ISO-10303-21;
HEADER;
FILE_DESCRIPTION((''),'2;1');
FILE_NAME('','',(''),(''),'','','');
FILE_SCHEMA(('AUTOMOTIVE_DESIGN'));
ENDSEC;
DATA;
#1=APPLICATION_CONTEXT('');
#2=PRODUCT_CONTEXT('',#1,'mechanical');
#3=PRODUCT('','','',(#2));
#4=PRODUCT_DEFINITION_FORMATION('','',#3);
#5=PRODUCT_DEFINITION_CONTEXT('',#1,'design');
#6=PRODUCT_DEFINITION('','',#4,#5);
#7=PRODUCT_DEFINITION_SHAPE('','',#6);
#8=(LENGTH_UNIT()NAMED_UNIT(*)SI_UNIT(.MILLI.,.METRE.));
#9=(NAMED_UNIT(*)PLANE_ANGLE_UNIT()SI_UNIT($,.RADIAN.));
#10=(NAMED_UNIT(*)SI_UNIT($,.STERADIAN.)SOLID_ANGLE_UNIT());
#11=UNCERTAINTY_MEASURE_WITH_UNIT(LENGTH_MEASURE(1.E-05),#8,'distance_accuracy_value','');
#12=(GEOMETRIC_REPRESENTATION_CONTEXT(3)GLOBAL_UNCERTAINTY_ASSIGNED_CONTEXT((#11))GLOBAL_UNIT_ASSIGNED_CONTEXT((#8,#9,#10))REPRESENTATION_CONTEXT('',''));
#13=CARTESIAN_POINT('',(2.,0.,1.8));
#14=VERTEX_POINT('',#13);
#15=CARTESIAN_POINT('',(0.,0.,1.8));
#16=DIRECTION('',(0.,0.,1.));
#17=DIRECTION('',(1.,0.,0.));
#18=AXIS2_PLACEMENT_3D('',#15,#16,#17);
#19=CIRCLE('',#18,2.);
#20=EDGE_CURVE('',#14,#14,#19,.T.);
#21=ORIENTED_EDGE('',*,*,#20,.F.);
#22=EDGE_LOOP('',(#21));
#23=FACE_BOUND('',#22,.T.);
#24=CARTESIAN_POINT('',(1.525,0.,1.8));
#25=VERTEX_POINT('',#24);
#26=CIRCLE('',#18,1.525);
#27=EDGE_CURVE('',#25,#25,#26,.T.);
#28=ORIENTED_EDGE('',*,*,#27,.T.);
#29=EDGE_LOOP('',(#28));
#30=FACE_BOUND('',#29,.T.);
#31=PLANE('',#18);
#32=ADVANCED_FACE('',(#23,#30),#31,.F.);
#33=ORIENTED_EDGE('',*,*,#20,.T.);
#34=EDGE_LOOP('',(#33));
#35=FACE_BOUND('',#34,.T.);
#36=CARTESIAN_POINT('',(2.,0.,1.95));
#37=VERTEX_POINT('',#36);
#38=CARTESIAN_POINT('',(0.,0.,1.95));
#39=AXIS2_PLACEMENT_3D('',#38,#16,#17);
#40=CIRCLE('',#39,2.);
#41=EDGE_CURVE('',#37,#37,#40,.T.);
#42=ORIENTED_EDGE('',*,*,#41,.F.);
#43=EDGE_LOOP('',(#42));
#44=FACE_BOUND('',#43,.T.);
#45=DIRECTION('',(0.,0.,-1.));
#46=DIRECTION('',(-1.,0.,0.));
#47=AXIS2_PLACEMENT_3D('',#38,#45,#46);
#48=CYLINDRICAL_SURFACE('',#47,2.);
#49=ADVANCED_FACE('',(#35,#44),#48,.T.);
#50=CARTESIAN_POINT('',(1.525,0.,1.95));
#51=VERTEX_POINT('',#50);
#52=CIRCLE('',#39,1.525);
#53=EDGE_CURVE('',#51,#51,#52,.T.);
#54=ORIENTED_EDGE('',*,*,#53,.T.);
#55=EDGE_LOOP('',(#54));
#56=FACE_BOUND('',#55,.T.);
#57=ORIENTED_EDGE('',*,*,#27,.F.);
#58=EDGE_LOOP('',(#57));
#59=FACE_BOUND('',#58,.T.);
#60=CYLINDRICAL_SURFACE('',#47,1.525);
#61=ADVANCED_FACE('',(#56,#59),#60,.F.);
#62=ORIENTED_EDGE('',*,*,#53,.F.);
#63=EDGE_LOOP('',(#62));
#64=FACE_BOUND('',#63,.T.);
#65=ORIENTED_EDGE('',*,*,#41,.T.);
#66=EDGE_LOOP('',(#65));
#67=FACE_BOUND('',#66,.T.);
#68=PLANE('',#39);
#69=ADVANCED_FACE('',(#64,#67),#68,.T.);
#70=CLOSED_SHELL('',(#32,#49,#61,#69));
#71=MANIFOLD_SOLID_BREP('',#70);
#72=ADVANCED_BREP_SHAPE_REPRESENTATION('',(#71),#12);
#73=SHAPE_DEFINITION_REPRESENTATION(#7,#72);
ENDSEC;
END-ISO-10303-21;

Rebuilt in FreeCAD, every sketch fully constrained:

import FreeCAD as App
import Part
import Sketcher
Q = App.Units.Quantity

doc = App.newDocument("Part")
params = doc.addObject("Spreadsheet::Sheet", "Params")
for row, (alias, value) in enumerate([
    ("sketch1_diameter", "4 mm"),
    ("sketch1_diameter2", "3.05 mm"),
    ("pad1_length", "0.15 mm"),
], start=1):
    params.set(f"A{row}", alias)
    params.set(f"B{row}", "=" + value)
    params.setAlias(f"B{row}", alias)

body = doc.addObject("PartDesign::Body", "Body")

# Sketch on XY plane
sketch1 = body.newObject("Sketcher::SketchObject", "Sketch")
sketch1.AttachmentSupport = (doc.getObject("XY_Plane"), [""])
sketch1.MapMode = "FlatFace"
sketch1.AttachmentOffset = App.Placement(App.Vector(0, 0, 1.8), App.Rotation())
sketch1.addGeometry(Part.Circle(App.Vector(0, 0, 0), App.Vector(0, 0, 1), 2), False)
sketch1.addGeometry(Part.Circle(App.Vector(0, 0, 0), App.Vector(0, 0, 1), 1.5), False)
sketch1.addConstraint(Sketcher.Constraint("Coincident", 0, 3, -1, 1))
sketch1.addConstraint(Sketcher.Constraint("Coincident", 1, 3, -1, 1))
sketch1.addConstraint(Sketcher.Constraint("Diameter", 0, Q("4 mm")))
sketch1.addConstraint(Sketcher.Constraint("Diameter", 1, Q("3.05 mm")))
sketch1.setExpression("Constraints[2]", "Params.sketch1_diameter")
sketch1.setExpression("Constraints[3]", "Params.sketch1_diameter2")
pad1 = body.newObject("PartDesign::Pad", "Pad")
pad1.Profile = sketch1
pad1.setExpression("Length", "Params.pad1_length")

doc.recompute()
